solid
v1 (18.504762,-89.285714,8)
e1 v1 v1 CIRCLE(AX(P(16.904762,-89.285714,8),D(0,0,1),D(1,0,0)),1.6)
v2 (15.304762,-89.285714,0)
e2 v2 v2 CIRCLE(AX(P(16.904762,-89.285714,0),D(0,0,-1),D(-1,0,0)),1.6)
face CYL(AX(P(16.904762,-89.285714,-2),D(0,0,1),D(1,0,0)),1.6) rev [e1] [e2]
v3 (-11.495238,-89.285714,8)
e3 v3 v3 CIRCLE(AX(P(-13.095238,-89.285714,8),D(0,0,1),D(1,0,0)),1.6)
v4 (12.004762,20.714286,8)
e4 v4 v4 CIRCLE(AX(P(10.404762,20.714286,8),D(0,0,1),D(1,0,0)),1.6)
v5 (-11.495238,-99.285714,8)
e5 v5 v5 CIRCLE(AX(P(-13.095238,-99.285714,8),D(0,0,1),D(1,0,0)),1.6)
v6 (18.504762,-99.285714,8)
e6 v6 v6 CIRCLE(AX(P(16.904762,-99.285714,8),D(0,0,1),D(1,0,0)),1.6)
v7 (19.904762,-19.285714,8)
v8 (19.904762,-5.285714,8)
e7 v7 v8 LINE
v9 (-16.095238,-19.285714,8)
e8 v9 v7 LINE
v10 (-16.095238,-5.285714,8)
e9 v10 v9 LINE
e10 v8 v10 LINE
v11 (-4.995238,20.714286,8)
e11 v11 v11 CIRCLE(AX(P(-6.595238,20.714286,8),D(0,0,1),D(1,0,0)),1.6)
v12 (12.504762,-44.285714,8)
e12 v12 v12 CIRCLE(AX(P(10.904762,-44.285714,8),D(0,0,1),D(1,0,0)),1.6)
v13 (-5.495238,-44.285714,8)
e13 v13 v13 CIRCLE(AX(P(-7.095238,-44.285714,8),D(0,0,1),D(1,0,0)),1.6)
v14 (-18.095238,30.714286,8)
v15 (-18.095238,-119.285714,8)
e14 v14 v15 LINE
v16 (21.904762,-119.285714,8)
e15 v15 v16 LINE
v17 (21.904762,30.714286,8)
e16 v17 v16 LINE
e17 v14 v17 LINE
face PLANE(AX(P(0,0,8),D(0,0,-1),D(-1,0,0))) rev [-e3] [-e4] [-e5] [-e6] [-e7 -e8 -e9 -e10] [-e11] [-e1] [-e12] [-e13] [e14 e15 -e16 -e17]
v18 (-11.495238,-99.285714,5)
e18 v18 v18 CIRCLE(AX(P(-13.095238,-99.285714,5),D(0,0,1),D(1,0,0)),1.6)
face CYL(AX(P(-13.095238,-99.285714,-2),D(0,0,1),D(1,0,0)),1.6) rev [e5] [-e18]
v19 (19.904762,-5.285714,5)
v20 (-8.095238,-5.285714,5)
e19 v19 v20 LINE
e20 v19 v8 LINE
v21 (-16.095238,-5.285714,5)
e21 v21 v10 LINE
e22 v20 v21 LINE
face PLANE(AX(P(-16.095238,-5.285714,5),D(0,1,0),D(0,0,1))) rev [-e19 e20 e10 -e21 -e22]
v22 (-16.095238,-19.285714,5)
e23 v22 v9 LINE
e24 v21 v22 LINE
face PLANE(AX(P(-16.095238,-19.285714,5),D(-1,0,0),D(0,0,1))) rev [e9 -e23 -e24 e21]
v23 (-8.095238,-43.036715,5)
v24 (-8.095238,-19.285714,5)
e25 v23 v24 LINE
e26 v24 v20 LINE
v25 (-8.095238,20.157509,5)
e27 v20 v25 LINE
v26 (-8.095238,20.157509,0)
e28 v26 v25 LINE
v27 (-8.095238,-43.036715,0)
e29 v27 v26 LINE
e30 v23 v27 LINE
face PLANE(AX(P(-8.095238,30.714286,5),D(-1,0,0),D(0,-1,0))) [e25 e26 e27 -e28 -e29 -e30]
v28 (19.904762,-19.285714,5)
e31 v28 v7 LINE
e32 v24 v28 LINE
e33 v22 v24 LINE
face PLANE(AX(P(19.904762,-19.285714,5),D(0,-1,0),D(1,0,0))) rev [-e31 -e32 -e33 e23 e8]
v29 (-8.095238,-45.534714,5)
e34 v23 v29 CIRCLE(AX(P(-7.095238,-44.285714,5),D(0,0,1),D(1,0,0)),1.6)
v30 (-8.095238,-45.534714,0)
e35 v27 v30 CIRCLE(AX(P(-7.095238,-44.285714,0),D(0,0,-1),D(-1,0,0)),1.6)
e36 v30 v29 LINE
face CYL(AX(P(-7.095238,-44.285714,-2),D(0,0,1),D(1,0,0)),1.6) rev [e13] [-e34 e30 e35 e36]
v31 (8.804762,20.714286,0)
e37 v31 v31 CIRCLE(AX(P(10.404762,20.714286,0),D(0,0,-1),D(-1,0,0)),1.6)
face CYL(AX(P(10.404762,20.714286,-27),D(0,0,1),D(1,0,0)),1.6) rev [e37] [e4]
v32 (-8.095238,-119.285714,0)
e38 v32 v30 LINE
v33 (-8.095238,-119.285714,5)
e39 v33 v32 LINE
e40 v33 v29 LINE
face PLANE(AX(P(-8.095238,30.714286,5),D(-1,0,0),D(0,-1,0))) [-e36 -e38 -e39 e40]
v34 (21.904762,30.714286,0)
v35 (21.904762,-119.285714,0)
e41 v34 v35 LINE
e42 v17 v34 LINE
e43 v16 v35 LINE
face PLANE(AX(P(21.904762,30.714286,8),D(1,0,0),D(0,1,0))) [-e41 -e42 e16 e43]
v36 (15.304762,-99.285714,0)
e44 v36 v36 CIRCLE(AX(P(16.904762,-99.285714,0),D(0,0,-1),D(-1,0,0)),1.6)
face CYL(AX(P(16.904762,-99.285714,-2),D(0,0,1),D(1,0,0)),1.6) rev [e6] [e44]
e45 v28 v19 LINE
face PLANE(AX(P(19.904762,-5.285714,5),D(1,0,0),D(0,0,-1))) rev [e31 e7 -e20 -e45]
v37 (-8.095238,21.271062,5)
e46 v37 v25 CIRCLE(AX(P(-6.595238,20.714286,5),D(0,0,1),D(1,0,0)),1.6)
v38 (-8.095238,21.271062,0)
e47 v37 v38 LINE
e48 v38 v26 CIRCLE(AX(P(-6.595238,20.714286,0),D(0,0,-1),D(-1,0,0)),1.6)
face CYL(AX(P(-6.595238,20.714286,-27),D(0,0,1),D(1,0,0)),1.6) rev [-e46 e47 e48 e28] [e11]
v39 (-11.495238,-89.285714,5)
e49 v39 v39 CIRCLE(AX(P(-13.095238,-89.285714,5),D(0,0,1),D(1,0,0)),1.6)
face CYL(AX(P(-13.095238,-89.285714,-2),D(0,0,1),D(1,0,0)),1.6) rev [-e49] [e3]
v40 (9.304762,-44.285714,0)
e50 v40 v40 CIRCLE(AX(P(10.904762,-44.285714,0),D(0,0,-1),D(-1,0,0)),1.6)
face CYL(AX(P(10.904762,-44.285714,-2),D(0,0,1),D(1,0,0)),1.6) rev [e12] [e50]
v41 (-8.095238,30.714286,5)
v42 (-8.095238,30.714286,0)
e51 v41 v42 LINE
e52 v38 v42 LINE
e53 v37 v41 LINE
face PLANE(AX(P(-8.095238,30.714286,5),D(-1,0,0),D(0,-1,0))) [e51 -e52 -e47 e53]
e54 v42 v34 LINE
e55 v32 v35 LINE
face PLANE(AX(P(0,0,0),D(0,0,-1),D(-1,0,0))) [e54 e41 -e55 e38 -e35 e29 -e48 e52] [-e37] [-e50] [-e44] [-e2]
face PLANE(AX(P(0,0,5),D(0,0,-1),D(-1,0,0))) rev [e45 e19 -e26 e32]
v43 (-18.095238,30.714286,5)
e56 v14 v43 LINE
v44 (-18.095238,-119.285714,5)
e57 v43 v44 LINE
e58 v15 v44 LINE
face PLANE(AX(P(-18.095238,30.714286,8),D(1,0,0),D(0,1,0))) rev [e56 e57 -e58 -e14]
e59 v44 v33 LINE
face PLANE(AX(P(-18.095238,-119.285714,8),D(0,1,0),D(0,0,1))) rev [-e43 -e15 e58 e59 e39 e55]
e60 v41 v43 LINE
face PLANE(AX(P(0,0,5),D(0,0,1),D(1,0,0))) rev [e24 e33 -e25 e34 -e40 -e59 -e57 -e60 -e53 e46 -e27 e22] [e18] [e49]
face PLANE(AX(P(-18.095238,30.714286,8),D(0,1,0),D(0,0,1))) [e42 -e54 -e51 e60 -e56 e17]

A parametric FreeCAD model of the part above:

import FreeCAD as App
import Part
import Sketcher
from FreeCAD import Vector
Q = App.Units.Quantity


def add_polygon(sketch, points):
    """Adds a closed chain of lines whose ends are joined by coincident constraints."""
    first, n = sketch.GeometryCount, len(points)
    for a, b in zip(points, points[1:] + points[:1]):
        sketch.addGeometry(Part.LineSegment(App.Vector(*a, 0), App.Vector(*b, 0)), False)
    for i in range(n):
        sketch.addConstraint(Sketcher.Constraint("Coincident", first + i, 2, first + (i + 1) % n, 1))

doc = App.newDocument("Part")
body = doc.addObject("PartDesign::Body", "Body")

# Sketch on XY plane
sketch1 = body.newObject("Sketcher::SketchObject", "Sketch")
sketch1.AttachmentSupport = (doc.getObject("XY_Plane"), [""])
sketch1.MapMode = "FlatFace"
add_polygon(sketch1, [(-18, 31), (-18, -119), (22, -119), (22, 31)])  # lines 0-3
sketch1.addConstraint([
    Sketcher.Constraint("Vertical", 0),
    Sketcher.Constraint("Horizontal", 1),
    Sketcher.Constraint("Vertical", 2),
    Sketcher.Constraint("Horizontal", 3),
    Sketcher.Constraint("DistanceX", 1, 1, 1, 2, Q("40 mm")),
    Sketcher.Constraint("DistanceY", 0, 2, 0, 1, Q("150 mm")),
    Sketcher.Constraint("DistanceX", 0, 2, -1, 1, Q("18.095238 mm")),
    Sketcher.Constraint("DistanceY", 0, 2, -1, 1, Q("119.285714 mm")),
])
pad1 = body.newObject("PartDesign::Pad", "Pad")
pad1.Profile = sketch1
pad1.Length = 8

# Sketch on XY plane
sketch2 = body.newObject("Sketcher::SketchObject", "Sketch001")
sketch2.AttachmentSupport = (doc.getObject("XY_Plane"), [""])
sketch2.MapMode = "FlatFace"
add_polygon(sketch2, [(-18, 31), (-18, -119), (-8, -119), (-8, 31)])  # lines 0-3
sketch2.addConstraint([
    Sketcher.Constraint("Vertical", 0),
    Sketcher.Constraint("Horizontal", 1),
    Sketcher.Constraint("Vertical", 2),
    Sketcher.Constraint("Horizontal", 3),
    Sketcher.Constraint("DistanceX", 1, 1, 1, 2, Q("10 mm")),
    Sketcher.Constraint("DistanceY", 0, 2, 0, 1, Q("150 mm")),
    Sketcher.Constraint("DistanceX", 0, 2, -1, 1, Q("18.095238 mm")),
    Sketcher.Constraint("DistanceY", 0, 2, -1, 1, Q("119.285714 mm")),
])
pocket1 = body.newObject("PartDesign::Pocket", "Pocket")
pocket1.Profile = sketch2
pocket1.Length = 5
pocket1.Reversed = True

# Sketch on XY plane
sketch3 = body.newObject("Sketcher::SketchObject", "Sketch002")
sketch3.AttachmentSupport = (doc.getObject("XY_Plane"), [""])
sketch3.MapMode = "FlatFace"
sketch3.AttachmentOffset = App.Placement(Vector(0, 0, 8), App.Rotation())
sketch3.addGeometry([
    Part.Circle(Vector(10.4, 20.7, 0), Vector(0, 0, 1), 1.6),
    Part.Circle(Vector(-6.6, 20.7, 0), Vector(0, 0, 1), 1.6),
], False)
sketch3.addConstraint([
    Sketcher.Constraint("Equal", 0, 1),
    Sketcher.Constraint("Horizontal", 0, 3, 1, 3),
    Sketcher.Constraint("Diameter", 0, Q("3.2 mm")),
    Sketcher.Constraint("DistanceX", 1, 3, 0, 3, Q("17 mm")),
    Sketcher.Constraint("DistanceX", -1, 1, 0, 3, Q("10.404762 mm")),
    Sketcher.Constraint("DistanceY", -1, 1, 0, 3, Q("20.714286 mm")),
])
pocket2 = body.newObject("PartDesign::Pocket", "Pocket001")
pocket2.Profile = sketch3
pocket2.Length = 35

# Sketch on XY plane
sketch4 = body.newObject("Sketcher::SketchObject", "Sketch003")
sketch4.AttachmentSupport = (doc.getObject("XY_Plane"), [""])
sketch4.MapMode = "FlatFace"
sketch4.AttachmentOffset = App.Placement(Vector(0, 0, 8), App.Rotation())
add_polygon(sketch4, [(-16, -5), (-16, -19), (20, -19), (20, -5)])  # lines 0-3
sketch4.addConstraint([
    Sketcher.Constraint("Vertical", 0),
    Sketcher.Constraint("Horizontal", 1),
    Sketcher.Constraint("Vertical", 2),
    Sketcher.Constraint("Horizontal", 3),
    Sketcher.Constraint("DistanceX", 1, 1, 1, 2, Q("36 mm")),
    Sketcher.Constraint("DistanceY", 0, 2, 0, 1, Q("14 mm")),
    Sketcher.Constraint("DistanceX", 0, 2, -1, 1, Q("16.095238 mm")),
    Sketcher.Constraint("DistanceY", 0, 2, -1, 1, Q("19.285714 mm")),
])
pocket3 = body.newObject("PartDesign::Pocket", "Pocket002")
pocket3.Profile = sketch4
pocket3.Length = 3

# Sketch on XY plane
sketch5 = body.newObject("Sketcher::SketchObject", "Sketch004")
sketch5.AttachmentSupport = (doc.getObject("XY_Plane"), [""])
sketch5.MapMode = "FlatFace"
sketch5.AttachmentOffset = App.Placement(Vector(0, 0, 8), App.Rotation())
sketch5.addGeometry([
    Part.Circle(Vector(-7.1, -44.3, 0), Vector(0, 0, 1), 1.6),
    Part.Circle(Vector(10.9, -44.3, 0), Vector(0, 0, 1), 1.6),
], False)
sketch5.addConstraint([
    Sketcher.Constraint("Equal", 0, 1),
    Sketcher.Constraint("Horizontal", 0, 3, 1, 3),
    Sketcher.Constraint("Diameter", 0, Q("3.2 mm")),
    Sketcher.Constraint("DistanceX", 0, 3, 1, 3, Q("18 mm")),
    Sketcher.Constraint("DistanceX", 0, 3, -1, 1, Q("7.095238 mm")),
    Sketcher.Constraint("DistanceY", 0, 3, -1, 1, Q("44.285714 mm")),
])
pocket4 = body.newObject("PartDesign::Pocket", "Pocket003")
pocket4.Profile = sketch5
pocket4.Length = 10

# Sketch on XY plane
sketch6 = body.newObject("Sketcher::SketchObject", "Sketch005")
sketch6.AttachmentSupport = (doc.getObject("XY_Plane"), [""])
sketch6.MapMode = "FlatFace"
sketch6.AttachmentOffset = App.Placement(Vector(0, 0, 8), App.Rotation())
sketch6.addGeometry([
    Part.Circle(Vector(-13.1, -89.3, 0), Vector(0, 0, 1), 1.6),
    Part.Circle(Vector(16.9, -89.3, 0), Vector(0, 0, 1), 1.6),
], False)
sketch6.addConstraint([
    Sketcher.Constraint("Equal", 0, 1),
    Sketcher.Constraint("Horizontal", 0, 3, 1, 3),
    Sketcher.Constraint("Diameter", 0, Q("3.2 mm")),
    Sketcher.Constraint("DistanceX", 0, 3, 1, 3, Q("30 mm")),
    Sketcher.Constraint("DistanceX", 0, 3, -1, 1, Q("13.095238 mm")),
    Sketcher.Constraint("DistanceY", 0, 3, -1, 1, Q("89.285714 mm")),
])
pocket5 = body.newObject("PartDesign::Pocket", "Pocket004")
pocket5.Profile = sketch6
pocket5.Length = 10

# Sketch on XY plane
sketch7 = body.newObject("Sketcher::SketchObject", "Sketch006")
sketch7.AttachmentSupport = (doc.getObject("XY_Plane"), [""])
sketch7.MapMode = "FlatFace"
sketch7.AttachmentOffset = App.Placement(Vector(0, 0, 8), App.Rotation())
sketch7.addGeometry([
    Part.Circle(Vector(-13.1, -99.3, 0), Vector(0, 0, 1), 1.6),
    Part.Circle(Vector(16.9, -99.3, 0), Vector(0, 0, 1), 1.6),
], False)
sketch7.addConstraint([
    Sketcher.Constraint("Equal", 0, 1),
    Sketcher.Constraint("Horizontal", 0, 3, 1, 3),
    Sketcher.Constraint("Diameter", 0, Q("3.2 mm")),
    Sketcher.Constraint("DistanceX", 0, 3, 1, 3, Q("30 mm")),
    Sketcher.Constraint("DistanceX", 0, 3, -1, 1, Q("13.095238 mm")),
    Sketcher.Constraint("DistanceY", 0, 3, -1, 1, Q("99.285714 mm")),
])
pocket6 = body.newObject("PartDesign::Pocket", "Pocket005")
pocket6.Profile = sketch7
pocket6.Length = 10

doc.recompute()
